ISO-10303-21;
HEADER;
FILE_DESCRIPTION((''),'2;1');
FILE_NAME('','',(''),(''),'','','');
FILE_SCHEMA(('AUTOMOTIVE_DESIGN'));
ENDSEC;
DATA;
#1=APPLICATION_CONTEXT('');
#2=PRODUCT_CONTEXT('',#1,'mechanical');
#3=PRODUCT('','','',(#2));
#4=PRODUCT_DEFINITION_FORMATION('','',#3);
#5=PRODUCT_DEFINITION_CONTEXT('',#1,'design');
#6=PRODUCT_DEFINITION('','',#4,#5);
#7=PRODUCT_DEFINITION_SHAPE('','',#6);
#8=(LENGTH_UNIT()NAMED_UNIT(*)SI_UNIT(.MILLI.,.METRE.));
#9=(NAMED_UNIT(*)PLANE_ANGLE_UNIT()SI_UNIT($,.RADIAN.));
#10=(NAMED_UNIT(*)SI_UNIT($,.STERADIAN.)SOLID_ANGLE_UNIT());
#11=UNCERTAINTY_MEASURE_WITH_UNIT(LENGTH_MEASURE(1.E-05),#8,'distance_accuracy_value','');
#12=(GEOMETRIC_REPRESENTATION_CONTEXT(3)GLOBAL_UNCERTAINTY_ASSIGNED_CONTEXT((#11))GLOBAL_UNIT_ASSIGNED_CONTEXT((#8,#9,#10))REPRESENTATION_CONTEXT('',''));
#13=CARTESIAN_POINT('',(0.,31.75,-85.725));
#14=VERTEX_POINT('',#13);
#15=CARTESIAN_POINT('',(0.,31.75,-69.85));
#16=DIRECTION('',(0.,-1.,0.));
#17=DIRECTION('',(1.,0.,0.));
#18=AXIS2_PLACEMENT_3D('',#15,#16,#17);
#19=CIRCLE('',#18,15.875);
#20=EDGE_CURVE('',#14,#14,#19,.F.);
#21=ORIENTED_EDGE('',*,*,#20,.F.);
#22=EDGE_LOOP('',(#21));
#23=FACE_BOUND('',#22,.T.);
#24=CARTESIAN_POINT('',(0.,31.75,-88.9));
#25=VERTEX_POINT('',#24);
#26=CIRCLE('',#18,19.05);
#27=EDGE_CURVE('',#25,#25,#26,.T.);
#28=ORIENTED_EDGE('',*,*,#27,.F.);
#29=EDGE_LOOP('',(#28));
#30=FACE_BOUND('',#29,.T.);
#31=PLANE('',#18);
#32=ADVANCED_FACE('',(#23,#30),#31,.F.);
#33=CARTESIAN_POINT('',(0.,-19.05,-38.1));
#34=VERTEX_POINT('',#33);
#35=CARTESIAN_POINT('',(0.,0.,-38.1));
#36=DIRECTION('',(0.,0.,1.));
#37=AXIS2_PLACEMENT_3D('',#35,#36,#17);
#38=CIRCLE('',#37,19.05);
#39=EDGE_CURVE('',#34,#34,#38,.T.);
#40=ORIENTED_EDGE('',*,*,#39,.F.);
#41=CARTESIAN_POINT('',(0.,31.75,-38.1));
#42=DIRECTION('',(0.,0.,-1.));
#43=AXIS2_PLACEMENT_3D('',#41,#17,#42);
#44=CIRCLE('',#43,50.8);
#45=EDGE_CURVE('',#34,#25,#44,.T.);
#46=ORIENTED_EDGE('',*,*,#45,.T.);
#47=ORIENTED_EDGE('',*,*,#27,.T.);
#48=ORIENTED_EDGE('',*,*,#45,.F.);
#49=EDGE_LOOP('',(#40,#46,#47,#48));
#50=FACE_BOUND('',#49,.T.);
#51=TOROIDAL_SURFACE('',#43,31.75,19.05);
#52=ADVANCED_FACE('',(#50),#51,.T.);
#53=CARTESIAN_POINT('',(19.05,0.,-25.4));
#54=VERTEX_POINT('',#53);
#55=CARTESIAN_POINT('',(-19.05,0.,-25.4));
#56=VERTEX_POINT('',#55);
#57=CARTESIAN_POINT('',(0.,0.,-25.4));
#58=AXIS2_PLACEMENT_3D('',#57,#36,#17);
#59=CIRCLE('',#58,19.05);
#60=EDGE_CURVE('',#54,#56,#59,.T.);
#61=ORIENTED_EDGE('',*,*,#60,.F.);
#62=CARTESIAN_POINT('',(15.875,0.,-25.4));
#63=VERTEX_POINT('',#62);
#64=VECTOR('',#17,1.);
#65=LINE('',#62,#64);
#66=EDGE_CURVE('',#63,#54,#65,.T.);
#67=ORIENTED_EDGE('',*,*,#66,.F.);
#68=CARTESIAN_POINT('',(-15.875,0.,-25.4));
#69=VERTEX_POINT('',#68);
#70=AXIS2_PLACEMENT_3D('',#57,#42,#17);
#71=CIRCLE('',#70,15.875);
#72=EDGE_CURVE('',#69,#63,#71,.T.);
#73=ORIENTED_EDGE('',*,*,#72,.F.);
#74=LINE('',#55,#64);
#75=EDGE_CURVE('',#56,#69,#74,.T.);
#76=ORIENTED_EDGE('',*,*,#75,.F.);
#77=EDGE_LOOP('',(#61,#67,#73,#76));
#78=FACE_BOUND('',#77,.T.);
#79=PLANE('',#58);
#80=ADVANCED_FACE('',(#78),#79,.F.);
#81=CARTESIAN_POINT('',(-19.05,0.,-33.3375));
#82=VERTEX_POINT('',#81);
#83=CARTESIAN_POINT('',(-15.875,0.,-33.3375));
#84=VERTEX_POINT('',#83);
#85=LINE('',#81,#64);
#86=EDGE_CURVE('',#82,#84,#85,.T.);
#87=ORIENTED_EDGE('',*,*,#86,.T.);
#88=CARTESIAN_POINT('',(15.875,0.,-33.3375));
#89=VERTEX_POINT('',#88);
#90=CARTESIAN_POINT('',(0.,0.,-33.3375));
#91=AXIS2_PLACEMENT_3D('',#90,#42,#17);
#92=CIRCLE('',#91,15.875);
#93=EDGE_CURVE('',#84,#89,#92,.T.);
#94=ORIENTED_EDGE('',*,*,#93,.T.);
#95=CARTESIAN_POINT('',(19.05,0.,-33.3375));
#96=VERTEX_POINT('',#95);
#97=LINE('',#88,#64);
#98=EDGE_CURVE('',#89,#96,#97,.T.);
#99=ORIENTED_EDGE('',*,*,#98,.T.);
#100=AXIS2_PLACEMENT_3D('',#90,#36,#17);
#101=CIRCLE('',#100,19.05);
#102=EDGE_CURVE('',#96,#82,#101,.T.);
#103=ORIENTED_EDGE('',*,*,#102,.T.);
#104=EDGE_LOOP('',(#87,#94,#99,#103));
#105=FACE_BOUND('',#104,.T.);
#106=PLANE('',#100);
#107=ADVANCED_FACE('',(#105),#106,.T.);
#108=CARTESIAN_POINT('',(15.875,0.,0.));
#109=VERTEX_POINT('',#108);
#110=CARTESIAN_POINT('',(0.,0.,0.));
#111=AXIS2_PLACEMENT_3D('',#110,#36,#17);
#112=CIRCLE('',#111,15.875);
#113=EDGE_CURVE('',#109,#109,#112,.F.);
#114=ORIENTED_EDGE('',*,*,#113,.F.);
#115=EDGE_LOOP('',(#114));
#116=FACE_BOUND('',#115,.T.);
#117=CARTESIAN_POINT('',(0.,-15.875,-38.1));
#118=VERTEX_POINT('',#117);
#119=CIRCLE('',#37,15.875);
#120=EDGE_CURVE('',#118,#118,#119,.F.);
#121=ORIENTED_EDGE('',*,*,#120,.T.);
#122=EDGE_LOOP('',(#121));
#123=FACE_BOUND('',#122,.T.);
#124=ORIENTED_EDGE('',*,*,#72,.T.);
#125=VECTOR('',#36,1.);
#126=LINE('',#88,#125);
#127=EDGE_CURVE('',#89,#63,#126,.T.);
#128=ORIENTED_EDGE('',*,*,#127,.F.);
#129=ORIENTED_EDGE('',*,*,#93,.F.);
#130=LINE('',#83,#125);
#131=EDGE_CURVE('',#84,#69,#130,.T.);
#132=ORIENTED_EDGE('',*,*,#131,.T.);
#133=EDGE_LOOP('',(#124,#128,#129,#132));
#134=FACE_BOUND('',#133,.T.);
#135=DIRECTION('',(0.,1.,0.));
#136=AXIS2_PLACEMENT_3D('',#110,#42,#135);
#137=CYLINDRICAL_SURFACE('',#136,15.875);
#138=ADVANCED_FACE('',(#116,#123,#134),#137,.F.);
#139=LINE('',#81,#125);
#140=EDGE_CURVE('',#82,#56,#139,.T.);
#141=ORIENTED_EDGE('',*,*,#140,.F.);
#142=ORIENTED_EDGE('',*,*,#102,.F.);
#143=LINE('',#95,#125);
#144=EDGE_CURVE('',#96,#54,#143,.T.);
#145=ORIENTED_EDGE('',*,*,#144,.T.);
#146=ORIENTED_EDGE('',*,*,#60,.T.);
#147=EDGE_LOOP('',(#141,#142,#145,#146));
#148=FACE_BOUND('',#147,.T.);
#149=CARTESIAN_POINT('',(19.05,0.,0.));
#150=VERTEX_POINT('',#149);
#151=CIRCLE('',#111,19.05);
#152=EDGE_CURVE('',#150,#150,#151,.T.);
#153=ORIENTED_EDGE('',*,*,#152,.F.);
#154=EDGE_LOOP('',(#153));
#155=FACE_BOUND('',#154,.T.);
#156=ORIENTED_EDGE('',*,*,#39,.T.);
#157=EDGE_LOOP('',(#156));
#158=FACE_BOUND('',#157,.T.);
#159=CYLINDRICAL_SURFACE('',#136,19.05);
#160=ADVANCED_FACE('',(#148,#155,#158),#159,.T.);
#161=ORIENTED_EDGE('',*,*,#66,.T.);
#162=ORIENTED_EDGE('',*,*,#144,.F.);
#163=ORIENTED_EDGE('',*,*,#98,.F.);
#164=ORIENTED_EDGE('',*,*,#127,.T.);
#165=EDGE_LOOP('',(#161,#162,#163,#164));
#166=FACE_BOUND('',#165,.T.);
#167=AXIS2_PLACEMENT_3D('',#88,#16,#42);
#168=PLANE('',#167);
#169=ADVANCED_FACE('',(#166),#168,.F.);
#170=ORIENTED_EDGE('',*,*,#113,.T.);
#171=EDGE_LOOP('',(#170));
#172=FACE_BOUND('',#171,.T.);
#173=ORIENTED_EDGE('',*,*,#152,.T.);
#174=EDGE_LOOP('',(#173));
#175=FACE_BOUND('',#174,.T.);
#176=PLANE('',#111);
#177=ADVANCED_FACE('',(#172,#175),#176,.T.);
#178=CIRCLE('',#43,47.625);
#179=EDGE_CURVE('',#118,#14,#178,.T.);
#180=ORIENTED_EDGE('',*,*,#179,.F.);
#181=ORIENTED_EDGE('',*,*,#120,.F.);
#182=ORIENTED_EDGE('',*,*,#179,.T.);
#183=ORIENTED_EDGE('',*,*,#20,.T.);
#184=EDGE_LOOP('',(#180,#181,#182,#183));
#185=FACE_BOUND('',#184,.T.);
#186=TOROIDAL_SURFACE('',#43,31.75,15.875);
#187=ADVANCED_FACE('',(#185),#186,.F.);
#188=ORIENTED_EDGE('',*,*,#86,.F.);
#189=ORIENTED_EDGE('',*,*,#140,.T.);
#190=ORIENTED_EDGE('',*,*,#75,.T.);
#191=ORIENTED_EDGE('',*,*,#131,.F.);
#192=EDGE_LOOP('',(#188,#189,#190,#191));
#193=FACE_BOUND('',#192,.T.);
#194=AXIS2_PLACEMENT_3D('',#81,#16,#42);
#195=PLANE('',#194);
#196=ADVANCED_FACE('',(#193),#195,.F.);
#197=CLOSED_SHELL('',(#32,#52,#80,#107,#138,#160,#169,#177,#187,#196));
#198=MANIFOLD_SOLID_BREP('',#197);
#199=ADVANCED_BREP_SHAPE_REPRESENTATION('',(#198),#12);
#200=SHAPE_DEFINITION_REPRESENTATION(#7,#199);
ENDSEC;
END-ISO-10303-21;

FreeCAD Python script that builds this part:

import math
import FreeCAD as App
import Part
import Sketcher
Q = App.Units.Quantity

doc = App.newDocument("Part")
params = doc.addObject("Spreadsheet::Sheet", "Params")
for row, (alias, value) in enumerate([
    ("sketch1_diameter", "1.5 in"),
    ("sketch1_diameter2", "1.25 in"),
    ("sketch2_radius", "1.25 in"),
    ("sketch2_height", "1.5 in"),
    ("sketch3_radius", "0.75 in"),
    ("sketch3_radius2", "0.625 in"),
    ("pocket1_length", "0.3125 in"),
], start=1):
    params.set(f"A{row}", alias)
    params.set(f"B{row}", "=" + value)
    params.setAlias(f"B{row}", alias)

body = doc.addObject("PartDesign::Body", "Body")

# Sketch on XY plane
sketch1 = body.newObject("Sketcher::SketchObject", "Sketch")
sketch1.AttachmentSupport = (doc.getObject("XY_Plane"), [""])
sketch1.MapMode = "FlatFace"
sketch1.addGeometry(Part.Circle(App.Vector(0, 0, 0), App.Vector(0, 0, 1), 19), False)
sketch1.addGeometry(Part.Circle(App.Vector(0, 0, 0), App.Vector(0, 0, 1), 16), False)
sketch1.addConstraint(Sketcher.Constraint("Coincident", 0, 3, -1, 1))
sketch1.addConstraint(Sketcher.Constraint("Coincident", 1, 3, -1, 1))
sketch1.addConstraint(Sketcher.Constraint("Diameter", 0, Q("1.5 in")))
sketch1.addConstraint(Sketcher.Constraint("Diameter", 1, Q("1.25 in")))
sketch1.setExpression("Constraints[2]", "Params.sketch1_diameter")
sketch1.setExpression("Constraints[3]", "Params.sketch1_diameter2")

# Sketch on YZ plane
sketch2 = body.newObject("Sketcher::SketchObject", "Sketch001")
sketch2.AttachmentSupport = (doc.getObject("YZ_Plane"), [""])
sketch2.MapMode = "FlatFace"
sketch2.addGeometry(Part.LineSegment(App.Vector(0, 0, 0), App.Vector(0, -38, 0)), False)
sketch2.addGeometry(Part.ArcOfCircle(Part.Circle(App.Vector(32, -38, 0), App.Vector(0, 0, 1), 32), math.radians(180), math.radians(270)), False)
sketch2.addConstraint(Sketcher.Constraint("Tangent", 0, 2, 1, 1))
sketch2.addConstraint(Sketcher.Constraint("Vertical", 0))
sketch2.addConstraint(Sketcher.Constraint("Coincident", 0, 1, -1, 1))
sketch2.addConstraint(Sketcher.Constraint("Radius", 1, Q("1.25 in")))
sketch2.addConstraint(Sketcher.Constraint("DistanceY", 0, 2, 0, 1, Q("1.5 in")))
sketch2.addConstraint(Sketcher.Constraint("DistanceX", -1, 1, 1, 2, Q("1.25 in")))
sketch2.setExpression("Constraints[3]", "Params.sketch2_radius")
sketch2.setExpression("Constraints[4]", "Params.sketch2_height")
doc.recompute()

additivepipe = body.newObject("PartDesign::AdditivePipe", "AdditivePipe")
additivepipe.Profile = sketch1
additivepipe.Spine = (sketch2, ["Edge1", "Edge2"])

# Sketch on XY plane
sketch3 = body.newObject("Sketcher::SketchObject", "Sketch002")
sketch3.AttachmentSupport = (doc.getObject("XY_Plane"), [""])
sketch3.MapMode = "FlatFace"
sketch3.AttachmentOffset = App.Placement(App.Vector(0, 0, -1.3125 * 25.4), App.Rotation())
sketch3.addGeometry(Part.LineSegment(App.Vector(-19.1, 0, 0), App.Vector(-15.9, 0, 0)), False)
sketch3.addGeometry(Part.ArcOfCircle(Part.Circle(App.Vector(0, 0, 0), App.Vector(0, 0, 1), 15.9), math.radians(0), math.radians(180)), False)
sketch3.addGeometry(Part.LineSegment(App.Vector(15.9, 0, 0), App.Vector(19.1, 0, 0)), False)
sketch3.addGeometry(Part.ArcOfCircle(Part.Circle(App.Vector(0, 0, 0), App.Vector(0, 0, 1), 19.1), math.radians(0), math.radians(180)), False)
sketch3.addConstraint(Sketcher.Constraint("Coincident", 0, 2, 1, 2))
sketch3.addConstraint(Sketcher.Constraint("Coincident", 1, 1, 2, 1))
sketch3.addConstraint(Sketcher.Constraint("Coincident", 2, 2, 3, 1))
sketch3.addConstraint(Sketcher.Constraint("Coincident", 3, 2, 0, 1))
sketch3.addConstraint(Sketcher.Constraint("Horizontal", 0))
sketch3.addConstraint(Sketcher.Constraint("Horizontal", 2))
sketch3.addConstraint(Sketcher.Constraint("Coincident", 1, 3, -1, 1))
sketch3.addConstraint(Sketcher.Constraint("Coincident", 3, 3, -1, 1))
sketch3.addConstraint(Sketcher.Constraint("PointOnObject", 0, 2, -1))
sketch3.addConstraint(Sketcher.Constraint("PointOnObject", 1, 1, -1))
sketch3.addConstraint(Sketcher.Constraint("Radius", 3, Q("0.75 in")))
sketch3.addConstraint(Sketcher.Constraint("Radius", 1, Q("0.625 in")))
sketch3.setExpression("Constraints[10]", "Params.sketch3_radius")
sketch3.setExpression("Constraints[11]", "Params.sketch3_radius2")
pocket1 = body.newObject("PartDesign::Pocket", "Pocket")
pocket1.Profile = sketch3
pocket1.setExpression("Length", "Params.pocket1_length")
pocket1.Reversed = True

doc.recompute()
